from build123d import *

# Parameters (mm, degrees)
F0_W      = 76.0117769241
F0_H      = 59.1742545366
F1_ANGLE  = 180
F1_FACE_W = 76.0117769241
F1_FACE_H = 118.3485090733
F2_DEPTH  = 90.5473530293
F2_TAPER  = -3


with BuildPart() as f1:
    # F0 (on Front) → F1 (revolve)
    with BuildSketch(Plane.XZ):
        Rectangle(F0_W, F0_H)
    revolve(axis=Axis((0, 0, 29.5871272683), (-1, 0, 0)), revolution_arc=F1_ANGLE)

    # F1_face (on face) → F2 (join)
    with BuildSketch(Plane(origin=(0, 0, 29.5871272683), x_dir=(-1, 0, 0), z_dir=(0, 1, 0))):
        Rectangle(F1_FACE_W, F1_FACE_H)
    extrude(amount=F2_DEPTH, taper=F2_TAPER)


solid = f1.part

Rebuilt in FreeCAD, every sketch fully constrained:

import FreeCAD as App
import Part
import Sketcher


def add_polygon(sketch, points):
    """Adds a closed chain of lines whose ends are joined by coincident constraints."""
    first, n = sketch.GeometryCount, len(points)
    for a, b in zip(points, points[1:] + points[:1]):
        sketch.addGeometry(Part.LineSegment(App.Vector(*a, 0), App.Vector(*b, 0)), False)
    for i in range(n):
        sketch.addConstraint(Sketcher.Constraint("Coincident", first + i, 2, first + (i + 1) % n, 1))

doc = App.newDocument("Part")
body = doc.addObject("PartDesign::Body", "Body")

sketch1 = body.newObject("Sketcher::SketchObject", "Sketch")
sketch1.AttachmentSupport = (doc.getObject("XZ_Plane"), [""])
sketch1.MapMode = "FlatFace"
add_polygon(sketch1, [(-38, 30), (-38, -30), (38, -30), (38, 30)])
sketch1.addGeometry(Part.LineSegment(App.Vector(38, 30, 0), App.Vector(-38, 30, 0)), True)
sketch1.addConstraint([
    Sketcher.Constraint("Vertical", 0),
    Sketcher.Constraint("Horizontal", 1),
    Sketcher.Constraint("Vertical", 2),
    Sketcher.Constraint("Horizontal", 3),
    Sketcher.Constraint("Horizontal", 4),
    Sketcher.Constraint("Coincident", 4, 1, 2, 2),
    Sketcher.Constraint("Symmetric", 0, 2, 2, 2, -1, 1),
    Sketcher.Constraint("Vertical", 0, 2, 4, 2),
    Sketcher.Constraint("DistanceX", 1, 1, 1, 2, 76.011777),
    Sketcher.Constraint("DistanceY", 0, 2, 0, 1, 59.174255),
])
revolution = body.newObject("PartDesign::Revolution", "Revolution")
revolution.Profile = sketch1
revolution.ReferenceAxis = (sketch1, ["Axis0"])
revolution.Angle = 180

sketch2 = body.newObject("Sketcher::SketchObject", "Sketch001")
sketch2.AttachmentSupport = (doc.getObject("XZ_Plane"), [""])
sketch2.MapMode = "FlatFace"
add_polygon(sketch2, [(38, 89), (38, -30), (-38, -30), (-38, 89)])
sketch2.addConstraint([
    Sketcher.Constraint("Vertical", 0),
    Sketcher.Constraint("Horizontal", 1),
    Sketcher.Constraint("Vertical", 2),
    Sketcher.Constraint("Horizontal", 3),
    Sketcher.Constraint("DistanceY", 0, 2, 0, 1, 118.348509),
    Sketcher.Constraint("DistanceX", 1, 2, 1, 1, 76.011777),
    Sketcher.Constraint("DistanceX", -1, 1, 0, 2, 38.005888),
    Sketcher.Constraint("DistanceY", -1, 1, 2, 2, 88.761382),
])
pad1 = body.newObject("PartDesign::Pad", "Pad")
pad1.Profile = sketch2
pad1.Length = 90.547353
pad1.Reversed = True
pad1.TaperAngle = 3

doc.recompute()
